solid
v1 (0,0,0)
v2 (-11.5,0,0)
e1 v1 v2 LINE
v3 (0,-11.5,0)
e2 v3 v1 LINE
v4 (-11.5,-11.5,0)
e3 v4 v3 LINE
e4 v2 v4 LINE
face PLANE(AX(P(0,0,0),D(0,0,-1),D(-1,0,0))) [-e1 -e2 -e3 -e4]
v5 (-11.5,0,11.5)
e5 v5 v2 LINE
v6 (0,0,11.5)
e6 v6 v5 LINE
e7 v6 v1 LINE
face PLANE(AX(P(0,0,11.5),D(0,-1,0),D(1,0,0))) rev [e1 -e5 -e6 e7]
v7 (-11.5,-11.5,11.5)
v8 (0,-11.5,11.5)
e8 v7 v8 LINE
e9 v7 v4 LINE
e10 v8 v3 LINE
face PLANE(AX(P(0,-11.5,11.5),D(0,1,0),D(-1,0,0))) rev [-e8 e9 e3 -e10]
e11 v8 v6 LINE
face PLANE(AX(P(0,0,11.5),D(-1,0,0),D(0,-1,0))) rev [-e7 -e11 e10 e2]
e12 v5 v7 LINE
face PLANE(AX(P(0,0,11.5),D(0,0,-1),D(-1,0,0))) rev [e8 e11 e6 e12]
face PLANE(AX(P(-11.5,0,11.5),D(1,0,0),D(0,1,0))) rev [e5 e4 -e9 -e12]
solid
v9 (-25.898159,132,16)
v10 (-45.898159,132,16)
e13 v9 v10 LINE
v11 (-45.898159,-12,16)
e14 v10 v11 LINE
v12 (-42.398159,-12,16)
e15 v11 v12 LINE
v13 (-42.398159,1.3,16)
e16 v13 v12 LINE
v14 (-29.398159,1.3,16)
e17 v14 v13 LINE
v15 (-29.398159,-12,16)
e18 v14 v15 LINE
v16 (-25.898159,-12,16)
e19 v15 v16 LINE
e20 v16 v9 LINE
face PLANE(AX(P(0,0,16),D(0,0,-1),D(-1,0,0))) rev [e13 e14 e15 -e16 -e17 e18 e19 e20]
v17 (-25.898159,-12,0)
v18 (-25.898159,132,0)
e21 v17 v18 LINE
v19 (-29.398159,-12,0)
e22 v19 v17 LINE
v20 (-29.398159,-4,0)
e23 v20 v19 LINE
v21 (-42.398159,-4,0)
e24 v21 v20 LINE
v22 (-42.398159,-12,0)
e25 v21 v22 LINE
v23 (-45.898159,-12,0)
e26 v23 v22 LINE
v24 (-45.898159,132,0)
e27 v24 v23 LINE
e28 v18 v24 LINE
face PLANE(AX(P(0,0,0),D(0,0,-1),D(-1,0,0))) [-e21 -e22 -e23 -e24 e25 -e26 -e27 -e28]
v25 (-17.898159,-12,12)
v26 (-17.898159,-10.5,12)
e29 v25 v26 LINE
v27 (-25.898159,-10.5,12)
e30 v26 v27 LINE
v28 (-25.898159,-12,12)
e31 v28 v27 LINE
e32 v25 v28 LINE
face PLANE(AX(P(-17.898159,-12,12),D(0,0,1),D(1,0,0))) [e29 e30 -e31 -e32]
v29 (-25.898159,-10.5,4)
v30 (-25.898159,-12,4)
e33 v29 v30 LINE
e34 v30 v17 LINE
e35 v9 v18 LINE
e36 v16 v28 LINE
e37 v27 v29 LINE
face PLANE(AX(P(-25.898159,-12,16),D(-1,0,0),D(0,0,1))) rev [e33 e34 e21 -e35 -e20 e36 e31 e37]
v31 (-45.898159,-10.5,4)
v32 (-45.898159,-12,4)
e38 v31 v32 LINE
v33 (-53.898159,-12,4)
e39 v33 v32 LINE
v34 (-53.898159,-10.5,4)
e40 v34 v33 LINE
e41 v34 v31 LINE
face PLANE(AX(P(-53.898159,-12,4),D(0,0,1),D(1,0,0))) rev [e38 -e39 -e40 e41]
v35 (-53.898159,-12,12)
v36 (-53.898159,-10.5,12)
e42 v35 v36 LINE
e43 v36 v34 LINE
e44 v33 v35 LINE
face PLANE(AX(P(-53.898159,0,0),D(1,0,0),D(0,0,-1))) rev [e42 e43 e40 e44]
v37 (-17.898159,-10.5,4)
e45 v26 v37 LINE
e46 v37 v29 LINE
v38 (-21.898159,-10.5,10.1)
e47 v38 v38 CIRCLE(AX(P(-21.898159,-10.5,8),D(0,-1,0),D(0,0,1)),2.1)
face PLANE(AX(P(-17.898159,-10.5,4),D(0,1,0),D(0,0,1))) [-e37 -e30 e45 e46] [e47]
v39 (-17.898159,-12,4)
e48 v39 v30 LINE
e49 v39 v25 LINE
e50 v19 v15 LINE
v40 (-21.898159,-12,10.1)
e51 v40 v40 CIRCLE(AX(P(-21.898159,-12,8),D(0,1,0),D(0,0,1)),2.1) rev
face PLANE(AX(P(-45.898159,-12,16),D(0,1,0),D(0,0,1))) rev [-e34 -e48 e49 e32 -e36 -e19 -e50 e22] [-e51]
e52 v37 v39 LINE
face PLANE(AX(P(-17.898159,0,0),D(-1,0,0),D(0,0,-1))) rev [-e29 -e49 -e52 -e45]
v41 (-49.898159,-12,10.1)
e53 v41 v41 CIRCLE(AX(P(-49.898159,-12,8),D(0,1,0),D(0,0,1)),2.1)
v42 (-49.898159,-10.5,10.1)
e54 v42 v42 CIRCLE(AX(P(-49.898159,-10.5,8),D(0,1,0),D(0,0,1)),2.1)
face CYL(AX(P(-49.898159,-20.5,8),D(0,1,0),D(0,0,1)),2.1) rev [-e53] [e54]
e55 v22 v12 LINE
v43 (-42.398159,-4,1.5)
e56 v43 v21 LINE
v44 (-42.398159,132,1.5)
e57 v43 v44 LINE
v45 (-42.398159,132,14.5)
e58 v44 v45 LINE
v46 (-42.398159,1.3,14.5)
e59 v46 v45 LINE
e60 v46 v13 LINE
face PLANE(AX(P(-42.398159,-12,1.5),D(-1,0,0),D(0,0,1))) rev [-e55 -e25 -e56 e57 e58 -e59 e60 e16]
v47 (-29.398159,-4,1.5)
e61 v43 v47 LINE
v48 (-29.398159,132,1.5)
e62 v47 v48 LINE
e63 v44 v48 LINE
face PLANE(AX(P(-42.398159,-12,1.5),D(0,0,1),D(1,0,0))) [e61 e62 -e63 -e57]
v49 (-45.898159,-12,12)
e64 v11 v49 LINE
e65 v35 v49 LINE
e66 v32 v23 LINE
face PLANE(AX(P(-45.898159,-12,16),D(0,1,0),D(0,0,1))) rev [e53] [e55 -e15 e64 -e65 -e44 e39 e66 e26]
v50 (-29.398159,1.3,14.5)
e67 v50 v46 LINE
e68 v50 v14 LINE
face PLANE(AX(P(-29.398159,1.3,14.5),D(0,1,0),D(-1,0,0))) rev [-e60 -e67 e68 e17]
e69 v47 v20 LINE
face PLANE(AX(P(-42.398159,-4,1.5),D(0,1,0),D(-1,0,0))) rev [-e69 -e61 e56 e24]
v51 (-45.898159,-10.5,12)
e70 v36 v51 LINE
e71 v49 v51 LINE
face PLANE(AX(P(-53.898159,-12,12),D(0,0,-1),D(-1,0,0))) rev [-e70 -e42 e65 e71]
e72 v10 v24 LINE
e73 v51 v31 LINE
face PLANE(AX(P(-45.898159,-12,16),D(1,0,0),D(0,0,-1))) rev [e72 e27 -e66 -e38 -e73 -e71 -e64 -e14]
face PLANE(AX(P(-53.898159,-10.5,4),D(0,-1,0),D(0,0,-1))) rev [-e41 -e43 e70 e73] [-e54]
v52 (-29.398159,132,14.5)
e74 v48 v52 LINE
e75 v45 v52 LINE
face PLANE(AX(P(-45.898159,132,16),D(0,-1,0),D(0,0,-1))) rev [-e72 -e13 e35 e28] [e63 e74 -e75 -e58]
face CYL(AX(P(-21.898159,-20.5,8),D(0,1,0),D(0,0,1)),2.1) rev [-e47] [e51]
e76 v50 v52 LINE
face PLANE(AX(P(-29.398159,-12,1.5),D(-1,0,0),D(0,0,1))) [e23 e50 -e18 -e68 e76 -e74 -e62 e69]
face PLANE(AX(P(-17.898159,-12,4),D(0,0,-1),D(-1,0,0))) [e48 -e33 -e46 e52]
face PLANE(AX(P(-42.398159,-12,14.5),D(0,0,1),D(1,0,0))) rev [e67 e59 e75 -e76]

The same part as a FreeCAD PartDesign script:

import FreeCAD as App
import Part
import Sketcher
from FreeCAD import Vector

doc = App.newDocument("Part")
params = doc.addObject("Spreadsheet::Sheet", "Params")
for row, (alias, value) in enumerate([
    ("sketch1_width", "11.5 mm"),
    ("pad1_length", "11.5 mm"),
    ("sketch2_width", "20 mm"),
    ("sketch2_height", "144 mm"),
    ("pad2_length", "16 mm"),
    ("sketch3_width", "13 mm"),
    ("sketch4_width", "13 mm"),
    ("sketch4_height", "13.3 mm"),
    ("pocket2_length", "1.5 mm"),
    ("sketch5_width", "13 mm"),
    ("sketch5_height", "8 mm"),
    ("pocket3_length", "1.5 mm"),
    ("sketch6_height", "8 mm"),
    ("sketch6_width", "1.5 mm"),
    ("pad3_length", "8 mm"),
    ("sketch7_diameter", "4.2 mm"),
    ("pocket4_length", "10 mm"),
], start=1):
    params.set(f"A{row}", alias)
    params.set(f"B{row}", "=" + value)
    params.setAlias(f"B{row}", alias)

body = doc.addObject("PartDesign::Body", "Body")

sketch1 = body.newObject("Sketcher::SketchObject", "Sketch")
sketch1.AttachmentSupport = (doc.getObject("XY_Plane"), [""])
sketch1.MapMode = "FlatFace"
sketch1.addGeometry([
    Part.LineSegment(Vector(-11.5, 0, 0), Vector(-11.5, -11.5, 0)),
    Part.LineSegment(Vector(-11.5, -11.5, 0), Vector(0, -11.5, 0)),
    Part.LineSegment(Vector(0, -11.5, 0), Vector(0, 0, 0)),
    Part.LineSegment(Vector(0, 0, 0), Vector(-11.5, 0, 0)),
], False)
sketch1.addConstraint([
    Sketcher.Constraint("Coincident", 0, 2, 1, 1),
    Sketcher.Constraint("Coincident", 1, 2, 2, 1),
    Sketcher.Constraint("Coincident", 2, 2, 3, 1),
    Sketcher.Constraint("Coincident", 3, 2, 0, 1),
    Sketcher.Constraint("Vertical", 0),
    Sketcher.Constraint("Horizontal", 1),
    Sketcher.Constraint("Vertical", 2),
    Sketcher.Constraint("Horizontal", 3),
    Sketcher.Constraint("Coincident", 2, 2, -1, 1),
    Sketcher.Constraint("Equal", 3, 0),
    Sketcher.Constraint("DistanceX", 1, 1, 1, 2, 11.5),
])
sketch1.setExpression("Constraints[10]", "Params.sketch1_width")
pad1 = body.newObject("PartDesign::Pad", "Pad")
pad1.Profile = sketch1
pad1.setExpression("Length", "Params.pad1_length")
body2 = doc.addObject("PartDesign::Body", "Body001")

sketch2 = body2.newObject("Sketcher::SketchObject", "Sketch001")
sketch2.AttachmentSupport = (doc.getObject("XY_Plane001"), [""])
sketch2.MapMode = "FlatFace"
sketch2.addGeometry([
    Part.LineSegment(Vector(-45.898159, 132, 0), Vector(-45.898159, -12, 0)),
    Part.LineSegment(Vector(-45.898159, -12, 0), Vector(-25.898159, -12, 0)),
    Part.LineSegment(Vector(-25.898159, -12, 0), Vector(-25.898159, 132, 0)),
    Part.LineSegment(Vector(-25.898159, 132, 0), Vector(-45.898159, 132, 0)),
], False)
sketch2.addConstraint([
    Sketcher.Constraint("Coincident", 0, 2, 1, 1),
    Sketcher.Constraint("Coincident", 1, 2, 2, 1),
    Sketcher.Constraint("Coincident", 2, 2, 3, 1),
    Sketcher.Constraint("Coincident", 3, 2, 0, 1),
    Sketcher.Constraint("Vertical", 0),
    Sketcher.Constraint("Horizontal", 1),
    Sketcher.Constraint("Vertical", 2),
    Sketcher.Constraint("Horizontal", 3),
    Sketcher.Constraint("DistanceX", 1, 1, 1, 2, 20.0),
    Sketcher.Constraint("DistanceY", 0, 2, 0, 1, 144.0),
    Sketcher.Constraint("DistanceY", 0, 2, -1, 1, 12.0),
    Sketcher.Constraint("DistanceX", 0, 2, -1, 1, 45.898159),
])
sketch2.setExpression("Constraints[8]", "Params.sketch2_width")
sketch2.setExpression("Constraints[9]", "Params.sketch2_height")
pad2 = body2.newObject("PartDesign::Pad", "Pad001")
pad2.Profile = sketch2
pad2.setExpression("Length", "Params.pad2_length")

sketch3 = body2.newObject("Sketcher::SketchObject", "Sketch002")
sketch3.AttachmentSupport = (doc.getObject("XZ_Plane001"), [""])
sketch3.MapMode = "FlatFace"
sketch3.AttachmentOffset = App.Placement(Vector(0, 0, -132), App.Rotation())
sketch3.addGeometry([
    Part.LineSegment(Vector(-42.398159, 1.5, 0), Vector(-42.398159, 14.5, 0)),
    Part.LineSegment(Vector(-42.398159, 14.5, 0), Vector(-29.398159, 14.5, 0)),
    Part.LineSegment(Vector(-29.398159, 14.5, 0), Vector(-29.398159, 1.5, 0)),
    Part.LineSegment(Vector(-29.398159, 1.5, 0), Vector(-42.398159, 1.5, 0)),
], False)
sketch3.addConstraint([
    Sketcher.Constraint("Coincident", 0, 2, 1, 1),
    Sketcher.Constraint("Coincident", 1, 2, 2, 1),
    Sketcher.Constraint("Coincident", 2, 2, 3, 1),
    Sketcher.Constraint("Coincident", 3, 2, 0, 1),
    Sketcher.Constraint("Vertical", 0),
    Sketcher.Constraint("Horizontal", 1),
    Sketcher.Constraint("Vertical", 2),
    Sketcher.Constraint("Horizontal", 3),
    Sketcher.Constraint("Equal", 3, 0),
    Sketcher.Constraint("DistanceX", 1, 1, 1, 2, 13.0),
    Sketcher.Constraint("DistanceY", -1, 1, 0, 2, 14.5),
    Sketcher.Constraint("DistanceX", 0, 2, -1, 1, 42.398159),
])
sketch3.setExpression("Constraints[9]", "Params.sketch3_width")
pocket1 = body2.newObject("PartDesign::Pocket", "Pocket")
pocket1.Profile = sketch3
pocket1.Type = "ThroughAll"
pocket1.Reversed = True

sketch4 = body2.newObject("Sketcher::SketchObject", "Sketch003")
sketch4.AttachmentSupport = (doc.getObject("XY_Plane001"), [""])
sketch4.MapMode = "FlatFace"
sketch4.AttachmentOffset = App.Placement(Vector(0, 0, 16), App.Rotation())
sketch4.addGeometry([
    Part.LineSegment(Vector(-42.398159, 1.3, 0), Vector(-42.398159, -12, 0)),
    Part.LineSegment(Vector(-42.398159, -12, 0), Vector(-29.398159, -12, 0)),
    Part.LineSegment(Vector(-29.398159, -12, 0), Vector(-29.398159, 1.3, 0)),
    Part.LineSegment(Vector(-29.398159, 1.3, 0), Vector(-42.398159, 1.3, 0)),
], False)
sketch4.addConstraint([
    Sketcher.Constraint("Coincident", 0, 2, 1, 1),
    Sketcher.Constraint("Coincident", 1, 2, 2, 1),
    Sketcher.Constraint("Coincident", 2, 2, 3, 1),
    Sketcher.Constraint("Coincident", 3, 2, 0, 1),
    Sketcher.Constraint("Vertical", 0),
    Sketcher.Constraint("Horizontal", 1),
    Sketcher.Constraint("Vertical", 2),
    Sketcher.Constraint("Horizontal", 3),
    Sketcher.Constraint("DistanceX", 1, 1, 1, 2, 13.0),
    Sketcher.Constraint("DistanceY", 0, 2, 0, 1, 13.3),
    Sketcher.Constraint("DistanceY", 0, 2, -1, 1, 12.0),
    Sketcher.Constraint("DistanceX", 0, 2, -1, 1, 42.398159),
])
sketch4.setExpression("Constraints[8]", "Params.sketch4_width")
sketch4.setExpression("Constraints[9]", "Params.sketch4_height")
pocket2 = body2.newObject("PartDesign::Pocket", "Pocket001")
pocket2.Profile = sketch4
pocket2.setExpression("Length", "Params.pocket2_length")

sketch5 = body2.newObject("Sketcher::SketchObject", "Sketch004")
sketch5.AttachmentSupport = (doc.getObject("XY_Plane001"), [""])
sketch5.MapMode = "FlatFace"
sketch5.addGeometry([
    Part.LineSegment(Vector(-29.398159, -4, 0), Vector(-29.398159, -12, 0)),
    Part.LineSegment(Vector(-29.398159, -12, 0), Vector(-42.398159, -12, 0)),
    Part.LineSegment(Vector(-42.398159, -12, 0), Vector(-42.398159, -4, 0)),
    Part.LineSegment(Vector(-42.398159, -4, 0), Vector(-29.398159, -4, 0)),
], False)
sketch5.addConstraint([
    Sketcher.Constraint("Coincident", 0, 2, 1, 1),
    Sketcher.Constraint("Coincident", 1, 2, 2, 1),
    Sketcher.Constraint("Coincident", 2, 2, 3, 1),
    Sketcher.Constraint("Coincident", 3, 2, 0, 1),
    Sketcher.Constraint("Vertical", 0),
    Sketcher.Constraint("Horizontal", 1),
    Sketcher.Constraint("Vertical", 2),
    Sketcher.Constraint("Horizontal", 3),
    Sketcher.Constraint("DistanceX", 1, 2, 1, 1, 13.0),
    Sketcher.Constraint("DistanceY", 0, 2, 0, 1, 8.0),
    Sketcher.Constraint("DistanceY", 0, 2, -1, 1, 12.0),
    Sketcher.Constraint("DistanceX", 0, 2, -1, 1, 29.398159),
])
sketch5.setExpression("Constraints[8]", "Params.sketch5_width")
sketch5.setExpression("Constraints[9]", "Params.sketch5_height")
pocket3 = body2.newObject("PartDesign::Pocket", "Pocket002")
pocket3.Profile = sketch5
pocket3.setExpression("Length", "Params.pocket3_length")
pocket3.Reversed = True

sketch6 = body2.newObject("Sketcher::SketchObject", "Sketch005")
sketch6.AttachmentSupport = (doc.getObject("YZ_Plane001"), [""])
sketch6.MapMode = "FlatFace"
sketch6.AttachmentOffset = App.Placement(Vector(0, 0, -45.898159), App.Rotation())
sketch6.addGeometry([
    Part.LineSegment(Vector(-10.5, 4, 0), Vector(-12, 4, 0)),
    Part.LineSegment(Vector(-12, 4, 0), Vector(-12, 12, 0)),
    Part.LineSegment(Vector(-12, 12, 0), Vector(-10.5, 12, 0)),
    Part.LineSegment(Vector(-10.5, 12, 0), Vector(-10.5, 4, 0)),
], False)
sketch6.addConstraint([
    Sketcher.Constraint("Coincident", 0, 2, 1, 1),
    Sketcher.Constraint("Coincident", 1, 2, 2, 1),
    Sketcher.Constraint("Coincident", 2, 2, 3, 1),
    Sketcher.Constraint("Coincident", 3, 2, 0, 1),
    Sketcher.Constraint("Horizontal", 0),
    Sketcher.Constraint("Vertical", 1),
    Sketcher.Constraint("Horizontal", 2),
    Sketcher.Constraint("Vertical", 3),
    Sketcher.Constraint("DistanceY", 1, 1, 1, 2, 8.0),
    Sketcher.Constraint("DistanceX", 0, 2, 0, 1, 1.5),
    Sketcher.Constraint("DistanceX", 0, 2, -1, 1, 12.0),
    Sketcher.Constraint("DistanceY", -1, 1, 0, 2, 4.0),
])
sketch6.setExpression("Constraints[8]", "Params.sketch6_height")
sketch6.setExpression("Constraints[9]", "Params.sketch6_width")
pad3 = body2.newObject("PartDesign::Pad", "Pad002")
pad3.Profile = sketch6
pad3.setExpression("Length", "Params.pad3_length")
pad3.Reversed = True

sketch7 = body2.newObject("Sketcher::SketchObject", "Sketch006")
sketch7.AttachmentSupport = (doc.getObject("XZ_Plane001"), [""])
sketch7.MapMode = "FlatFace"
sketch7.AttachmentOffset = App.Placement(Vector(0, 0, 10.5), App.Rotation())
sketch7.addGeometry(Part.Circle(Vector(-49.898159, 8, 0), Vector(0, 0, 1), 2.1), False)
sketch7.addConstraint([
    Sketcher.Constraint("Diameter", 0, 4.2),
    Sketcher.Constraint("DistanceY", -1, 1, 0, 3, 8.0),
    Sketcher.Constraint("DistanceX", 0, 3, -1, 1, 49.898159),
])
sketch7.setExpression("Constraints[0]", "Params.sketch7_diameter")
pocket4 = body2.newObject("PartDesign::Pocket", "Pocket003")
pocket4.Profile = sketch7
pocket4.setExpression("Length", "Params.pocket4_length")
pocket4.Reversed = True
doc.recompute()

datumplane = body2.newObject("PartDesign::Plane", "DatumPlane")
datumplane.AttachmentSupport = (doc.getObject("YZ_Plane001"), [""])
datumplane.MapMode = "FlatFace"
datumplane.AttachmentOffset = App.Placement(Vector(0, 0, -35.898159), App.Rotation())
mirrored = body2.newObject("PartDesign::Mirrored", "Mirrored")
mirrored.Originals = [pad3, pocket4]
mirrored.MirrorPlane = (datumplane, [""])
body2.Tip = mirrored

doc.recompute()
